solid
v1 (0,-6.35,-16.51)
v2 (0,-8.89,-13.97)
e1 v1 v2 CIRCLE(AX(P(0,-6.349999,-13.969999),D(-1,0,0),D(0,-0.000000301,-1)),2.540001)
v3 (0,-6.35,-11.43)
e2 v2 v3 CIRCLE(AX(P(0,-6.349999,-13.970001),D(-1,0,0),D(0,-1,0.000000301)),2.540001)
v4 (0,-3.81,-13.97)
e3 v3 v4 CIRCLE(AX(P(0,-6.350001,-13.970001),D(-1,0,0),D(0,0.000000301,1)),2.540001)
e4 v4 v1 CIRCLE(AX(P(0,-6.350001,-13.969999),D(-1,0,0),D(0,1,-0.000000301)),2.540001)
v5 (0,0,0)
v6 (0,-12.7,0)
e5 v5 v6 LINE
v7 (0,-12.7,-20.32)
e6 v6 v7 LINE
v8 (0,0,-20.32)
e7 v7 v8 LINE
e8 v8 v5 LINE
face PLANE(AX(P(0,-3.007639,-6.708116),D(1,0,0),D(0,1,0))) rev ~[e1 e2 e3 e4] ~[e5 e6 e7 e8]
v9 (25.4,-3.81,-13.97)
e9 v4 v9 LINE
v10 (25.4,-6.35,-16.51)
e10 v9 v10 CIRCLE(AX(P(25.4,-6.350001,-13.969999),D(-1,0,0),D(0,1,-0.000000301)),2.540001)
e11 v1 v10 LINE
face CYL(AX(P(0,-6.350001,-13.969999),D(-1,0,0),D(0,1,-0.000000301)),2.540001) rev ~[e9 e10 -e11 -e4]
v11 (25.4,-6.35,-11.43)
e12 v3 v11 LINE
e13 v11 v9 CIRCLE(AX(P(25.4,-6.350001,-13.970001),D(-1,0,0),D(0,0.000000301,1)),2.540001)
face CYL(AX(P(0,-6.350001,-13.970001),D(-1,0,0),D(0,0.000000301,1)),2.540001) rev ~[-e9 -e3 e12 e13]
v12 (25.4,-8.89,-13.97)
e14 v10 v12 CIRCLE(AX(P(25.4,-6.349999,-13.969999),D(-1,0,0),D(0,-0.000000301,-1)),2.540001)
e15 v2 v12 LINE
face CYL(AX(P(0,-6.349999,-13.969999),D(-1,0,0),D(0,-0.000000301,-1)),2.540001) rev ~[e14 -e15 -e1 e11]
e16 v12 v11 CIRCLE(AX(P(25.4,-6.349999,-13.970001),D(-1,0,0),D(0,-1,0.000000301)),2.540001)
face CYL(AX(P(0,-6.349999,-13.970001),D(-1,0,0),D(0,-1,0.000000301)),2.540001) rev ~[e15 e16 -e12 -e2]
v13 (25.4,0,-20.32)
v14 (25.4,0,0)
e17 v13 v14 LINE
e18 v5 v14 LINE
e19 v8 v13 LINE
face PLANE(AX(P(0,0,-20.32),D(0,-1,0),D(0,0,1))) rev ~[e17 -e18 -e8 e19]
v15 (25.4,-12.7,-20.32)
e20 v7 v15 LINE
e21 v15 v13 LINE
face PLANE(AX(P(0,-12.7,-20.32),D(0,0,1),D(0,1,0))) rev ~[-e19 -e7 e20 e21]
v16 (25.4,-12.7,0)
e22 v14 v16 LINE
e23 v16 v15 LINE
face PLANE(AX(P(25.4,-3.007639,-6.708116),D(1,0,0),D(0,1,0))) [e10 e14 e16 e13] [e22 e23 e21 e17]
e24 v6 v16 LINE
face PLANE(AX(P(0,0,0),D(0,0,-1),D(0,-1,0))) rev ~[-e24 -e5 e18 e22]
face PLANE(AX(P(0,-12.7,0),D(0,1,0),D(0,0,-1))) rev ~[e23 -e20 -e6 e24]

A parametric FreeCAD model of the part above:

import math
import FreeCAD as App
import Part
import Sketcher

V = App.Vector
Q = App.Units.Quantity

doc = App.newDocument("Part")
body = doc.addObject("PartDesign::Body", "Body")

sketch1 = body.newObject("Sketcher::SketchObject", "Sketch")
sketch1.AttachmentSupport = (doc.getObject("YZ_Plane"), [""])
sketch1.MapMode = "FlatFace"
sketch1.addGeometry(Part.LineSegment(V(0, 0, 0), V(-12.7, 0, 0)), False)
sketch1.addGeometry(Part.LineSegment(V(-12.7, 0, 0), V(-12.7, -20.3, 0)), False)
sketch1.addGeometry(Part.LineSegment(V(-12.7, -20.3, 0), V(0, -20.3, 0)), False)
sketch1.addGeometry(Part.LineSegment(V(0, -20.3, 0), V(0, 0, 0)), False)
sketch1.addGeometry(Part.ArcOfCircle(Part.Circle(V(-6.3, -14, 0), V(0, 0, 1), 2.5), math.radians(-180), math.radians(-90)), False)
sketch1.addGeometry(Part.ArcOfCircle(Part.Circle(V(-6.3, -14, 0), V(0, 0, 1), 2.5), math.radians(90), math.radians(180)), False)
sketch1.addGeometry(Part.ArcOfCircle(Part.Circle(V(-6.4, -14, 0), V(0, 0, 1), 2.5), math.radians(0), math.radians(90)), False)
sketch1.addGeometry(Part.ArcOfCircle(Part.Circle(V(-6.4, -14, 0), V(0, 0, 1), 2.5), math.radians(-90), math.radians(0)), False)
sketch1.addConstraint(Sketcher.Constraint("Coincident", 0, 2, 1, 1))
sketch1.addConstraint(Sketcher.Constraint("Coincident", 1, 2, 2, 1))
sketch1.addConstraint(Sketcher.Constraint("Coincident", 2, 2, 3, 1))
sketch1.addConstraint(Sketcher.Constraint("Coincident", 3, 2, 0, 1))
sketch1.addConstraint(Sketcher.Constraint("Tangent", 4, 1, 5, 2))
sketch1.addConstraint(Sketcher.Constraint("Tangent", 5, 1, 6, 2))
sketch1.addConstraint(Sketcher.Constraint("Tangent", 6, 1, 7, 2))
sketch1.addConstraint(Sketcher.Constraint("Tangent", 7, 1, 4, 2))
sketch1.addConstraint(Sketcher.Constraint("Horizontal", 0))
sketch1.addConstraint(Sketcher.Constraint("Vertical", 1))
sketch1.addConstraint(Sketcher.Constraint("Horizontal", 2))
sketch1.addConstraint(Sketcher.Constraint("Vertical", 3))
sketch1.addConstraint(Sketcher.Constraint("Coincident", 3, 2, -1, 1))
sketch1.addConstraint(Sketcher.Constraint("Equal", 4, 5))
sketch1.addConstraint(Sketcher.Constraint("Horizontal", 7, 3, 4, 1))
sketch1.addConstraint(Sketcher.Constraint("Horizontal", 4, 1, 6, 1))
sketch1.addConstraint(Sketcher.Constraint("Vertical", 7, 3, 5, 1))
sketch1.addConstraint(Sketcher.Constraint("Vertical", 5, 1, 7, 1))
sketch1.addConstraint(Sketcher.Constraint("Radius", 4, Q("0.1 in")))
sketch1.addConstraint(Sketcher.Constraint("DistanceX", 0, 2, 0, 1, Q("0.5 in")))
sketch1.addConstraint(Sketcher.Constraint("DistanceY", 1, 2, 1, 1, Q("0.8 in")))
sketch1.addConstraint(Sketcher.Constraint("DistanceX", 4, 3, -1, 1, Q("0.25 in")))
sketch1.addConstraint(Sketcher.Constraint("DistanceY", 4, 3, -1, 1, Q("0.55 in")))
pad1 = body.newObject("PartDesign::Pad", "Pad")
pad1.Profile = sketch1
pad1.Length = Q("1 in")

doc.recompute()
